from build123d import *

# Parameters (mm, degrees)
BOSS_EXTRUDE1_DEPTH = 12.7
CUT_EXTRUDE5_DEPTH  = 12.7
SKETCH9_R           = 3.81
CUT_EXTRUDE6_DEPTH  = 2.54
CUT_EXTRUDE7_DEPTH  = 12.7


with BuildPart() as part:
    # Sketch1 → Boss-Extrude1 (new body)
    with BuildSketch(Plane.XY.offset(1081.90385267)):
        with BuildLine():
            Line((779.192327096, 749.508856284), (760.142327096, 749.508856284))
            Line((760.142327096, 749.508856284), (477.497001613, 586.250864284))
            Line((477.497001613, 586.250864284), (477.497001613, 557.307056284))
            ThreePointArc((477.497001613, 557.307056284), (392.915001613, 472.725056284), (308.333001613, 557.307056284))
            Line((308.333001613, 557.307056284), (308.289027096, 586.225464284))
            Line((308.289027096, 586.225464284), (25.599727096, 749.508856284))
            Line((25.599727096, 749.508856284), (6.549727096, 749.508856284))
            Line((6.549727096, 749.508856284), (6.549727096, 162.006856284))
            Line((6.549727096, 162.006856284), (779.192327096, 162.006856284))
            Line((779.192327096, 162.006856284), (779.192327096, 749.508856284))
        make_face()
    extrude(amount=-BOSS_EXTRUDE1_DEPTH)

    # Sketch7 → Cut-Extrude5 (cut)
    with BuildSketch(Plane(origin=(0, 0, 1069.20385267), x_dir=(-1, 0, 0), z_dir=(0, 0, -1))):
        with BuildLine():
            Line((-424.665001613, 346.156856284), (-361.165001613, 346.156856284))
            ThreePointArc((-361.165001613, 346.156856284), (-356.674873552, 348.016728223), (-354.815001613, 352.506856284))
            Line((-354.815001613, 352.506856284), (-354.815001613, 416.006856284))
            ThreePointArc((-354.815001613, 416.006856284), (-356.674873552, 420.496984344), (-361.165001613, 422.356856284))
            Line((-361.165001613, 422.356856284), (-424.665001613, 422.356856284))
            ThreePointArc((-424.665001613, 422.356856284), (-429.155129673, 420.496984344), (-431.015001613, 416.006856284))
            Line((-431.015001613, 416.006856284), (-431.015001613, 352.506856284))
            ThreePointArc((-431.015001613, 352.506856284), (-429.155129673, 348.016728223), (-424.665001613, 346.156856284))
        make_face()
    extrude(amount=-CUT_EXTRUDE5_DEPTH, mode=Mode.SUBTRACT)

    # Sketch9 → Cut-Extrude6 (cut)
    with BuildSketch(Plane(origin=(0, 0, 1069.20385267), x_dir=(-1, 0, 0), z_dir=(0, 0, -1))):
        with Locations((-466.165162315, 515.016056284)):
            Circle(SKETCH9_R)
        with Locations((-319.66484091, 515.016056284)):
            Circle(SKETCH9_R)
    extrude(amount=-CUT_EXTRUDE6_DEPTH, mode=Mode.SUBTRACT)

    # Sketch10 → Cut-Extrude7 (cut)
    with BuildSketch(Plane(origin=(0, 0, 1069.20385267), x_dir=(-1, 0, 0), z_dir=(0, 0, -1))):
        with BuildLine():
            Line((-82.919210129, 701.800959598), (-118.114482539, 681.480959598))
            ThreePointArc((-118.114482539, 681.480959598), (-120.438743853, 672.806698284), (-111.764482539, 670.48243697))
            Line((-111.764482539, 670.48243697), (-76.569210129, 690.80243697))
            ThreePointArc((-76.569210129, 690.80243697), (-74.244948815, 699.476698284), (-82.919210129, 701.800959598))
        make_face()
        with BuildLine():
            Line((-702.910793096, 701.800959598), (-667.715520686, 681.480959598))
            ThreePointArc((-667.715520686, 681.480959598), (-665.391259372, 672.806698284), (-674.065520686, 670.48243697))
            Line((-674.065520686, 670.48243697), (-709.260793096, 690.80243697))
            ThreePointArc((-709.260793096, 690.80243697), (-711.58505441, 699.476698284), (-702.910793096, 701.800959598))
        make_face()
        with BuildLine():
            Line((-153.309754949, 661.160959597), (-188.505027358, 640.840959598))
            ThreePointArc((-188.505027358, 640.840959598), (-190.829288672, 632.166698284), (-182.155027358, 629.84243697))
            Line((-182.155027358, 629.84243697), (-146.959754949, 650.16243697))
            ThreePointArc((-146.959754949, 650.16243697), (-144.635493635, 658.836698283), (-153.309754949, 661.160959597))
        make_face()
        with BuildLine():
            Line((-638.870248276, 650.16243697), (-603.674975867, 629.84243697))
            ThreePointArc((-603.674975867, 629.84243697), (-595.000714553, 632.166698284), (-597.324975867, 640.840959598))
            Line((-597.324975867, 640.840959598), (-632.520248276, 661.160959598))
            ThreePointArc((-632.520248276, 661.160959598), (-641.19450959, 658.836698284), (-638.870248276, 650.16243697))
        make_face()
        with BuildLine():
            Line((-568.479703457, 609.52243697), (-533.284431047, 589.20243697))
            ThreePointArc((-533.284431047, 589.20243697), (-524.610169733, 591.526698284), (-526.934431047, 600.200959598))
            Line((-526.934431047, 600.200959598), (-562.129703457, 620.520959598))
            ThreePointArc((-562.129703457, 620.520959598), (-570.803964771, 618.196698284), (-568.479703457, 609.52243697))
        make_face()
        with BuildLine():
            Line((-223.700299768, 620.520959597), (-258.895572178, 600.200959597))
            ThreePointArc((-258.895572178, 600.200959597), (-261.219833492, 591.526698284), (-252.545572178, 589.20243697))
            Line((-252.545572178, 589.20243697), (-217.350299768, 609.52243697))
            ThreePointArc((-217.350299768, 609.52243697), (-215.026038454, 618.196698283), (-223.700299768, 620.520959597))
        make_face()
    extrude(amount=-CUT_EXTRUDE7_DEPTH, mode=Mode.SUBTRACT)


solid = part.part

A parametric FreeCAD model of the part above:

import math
import FreeCAD as App
import Part
import Sketcher

V = App.Vector
Q = App.Units.Quantity

doc = App.newDocument("Part")
body = doc.addObject("PartDesign::Body", "Body")

sketch1 = body.newObject("Sketcher::SketchObject", "Sketch")
sketch1.AttachmentSupport = (doc.getObject("XY_Plane"), [""])
sketch1.MapMode = "FlatFace"
sketch1.AttachmentOffset = App.Placement(V(0, 0, 1081.903853), App.Rotation())
sketch1.addGeometry([
    Part.LineSegment(V(779, 750, 0), V(760, 750, 0)),
    Part.LineSegment(V(760, 750, 0), V(477, 586, 0)),
    Part.LineSegment(V(477, 586, 0), V(477, 557, 0)),
    Part.ArcOfCircle(Part.Circle(V(393, 557, 0), V(0, 0, 1), 85), math.radians(180), math.radians(360)),
    Part.LineSegment(V(308, 557, 0), V(308, 586, 0)),
    Part.LineSegment(V(308, 586, 0), V(26, 750, 0)),
    Part.LineSegment(V(26, 750, 0), V(7, 750, 0)),
    Part.LineSegment(V(7, 750, 0), V(7, 162, 0)),
    Part.LineSegment(V(7, 162, 0), V(779, 162, 0)),
    Part.LineSegment(V(779, 162, 0), V(779, 750, 0)),
], False)
sketch1.addConstraint([
    Sketcher.Constraint("Coincident", 0, 2, 1, 1),
    Sketcher.Constraint("Coincident", 1, 2, 2, 1),
    Sketcher.Constraint("Tangent", 2, 2, 3, 2),
    Sketcher.Constraint("Coincident", 3, 1, 4, 1),
    Sketcher.Constraint("Coincident", 4, 2, 5, 1),
    Sketcher.Constraint("Coincident", 5, 2, 6, 1),
    Sketcher.Constraint("Coincident", 6, 2, 7, 1),
    Sketcher.Constraint("Coincident", 7, 2, 8, 1),
    Sketcher.Constraint("Coincident", 8, 2, 9, 1),
    Sketcher.Constraint("Coincident", 9, 2, 0, 1),
    Sketcher.Constraint("Horizontal", 0),
    Sketcher.Constraint("Vertical", 2),
    Sketcher.Constraint("Horizontal", 6),
    Sketcher.Constraint("Vertical", 7),
    Sketcher.Constraint("Horizontal", 8),
    Sketcher.Constraint("Vertical", 9),
    Sketcher.Constraint("Horizontal", 2, 2, 3, 1),
    Sketcher.Constraint("Horizontal", 0, 2, 5, 2),
    Sketcher.Constraint("Equal", 0, 6),
    Sketcher.Constraint("Radius", 3, Q("3.33 in")),
    Sketcher.Constraint("DistanceX", 0, 2, 0, 1, Q("0.75 in")),
    Sketcher.Constraint("DistanceY", 7, 2, 7, 1, Q("23.13 in")),
    Sketcher.Constraint("DistanceX", 8, 1, 8, 2, Q("30.419 in")),
    Sketcher.Constraint("DistanceY", 3, 3, 0, 2, Q("7.567 in")),
    Sketcher.Constraint("DistanceY", 4, 2, 1, 2, Q("0.001 in")),
    Sketcher.Constraint("DistanceX", 4, 2, 0, 2, Q("17.7895 in")),
    Sketcher.Constraint("DistanceX", -1, 1, 3, 3, Q("392.915002 mm")),
    Sketcher.Constraint("Distance", 4, Q("28.918441 mm")),
    Sketcher.Constraint("Distance", 1, Q("326.407034 mm")),
    Sketcher.Constraint("DistanceY", -1, 1, 3, 3, Q("557.307056 mm")),
])
pad1 = body.newObject("PartDesign::Pad", "Pad")
pad1.Profile = sketch1
pad1.Length = Q("0.5 in")
pad1.Reversed = True

sketch2 = body.newObject("Sketcher::SketchObject", "Sketch001")
sketch2.AttachmentSupport = (doc.getObject("XY_Plane"), [""])
sketch2.MapMode = "FlatFace"
sketch2.AttachmentOffset = App.Placement(V(0, 0, 1069.203853), App.Rotation())
sketch2.addGeometry([
    Part.LineSegment(V(425, 346, 0), V(361, 346, 0)),
    Part.ArcOfCircle(Part.Circle(V(361, 353, 0), V(0, 0, 1), 6), math.radians(180), math.radians(270)),
    Part.LineSegment(V(355, 353, 0), V(355, 416, 0)),
    Part.ArcOfCircle(Part.Circle(V(361, 416, 0), V(0, 0, 1), 6), math.radians(90), math.radians(180)),
    Part.LineSegment(V(361, 422, 0), V(425, 422, 0)),
    Part.ArcOfCircle(Part.Circle(V(425, 416, 0), V(0, 0, 1), 6), math.radians(0), math.radians(90)),
    Part.LineSegment(V(431, 416, 0), V(431, 353, 0)),
    Part.ArcOfCircle(Part.Circle(V(425, 353, 0), V(0, 0, 1), 6), math.radians(-90), math.radians(0)),
], False)
sketch2.addConstraint([
    Sketcher.Constraint("Tangent", 0, 2, 1, 2),
    Sketcher.Constraint("Tangent", 1, 1, 2, 1),
    Sketcher.Constraint("Tangent", 2, 2, 3, 2),
    Sketcher.Constraint("Tangent", 3, 1, 4, 1),
    Sketcher.Constraint("Tangent", 4, 2, 5, 2),
    Sketcher.Constraint("Tangent", 5, 1, 6, 1),
    Sketcher.Constraint("Tangent", 6, 2, 7, 2),
    Sketcher.Constraint("Tangent", 7, 1, 0, 1),
    Sketcher.Constraint("Horizontal", 0),
    Sketcher.Constraint("Vertical", 2),
    Sketcher.Constraint("Horizontal", 4),
    Sketcher.Constraint("Vertical", 6),
    Sketcher.Constraint("Equal", 1, 3),
    Sketcher.Constraint("Equal", 3, 5),
    Sketcher.Constraint("Equal", 5, 7),
    Sketcher.Constraint("Equal", 4, 2),
    Sketcher.Constraint("Radius", 1, Q("0.25 in")),
    Sketcher.Constraint("DistanceX", 0, 2, 0, 1, Q("2.5 in")),
    Sketcher.Constraint("DistanceX", -1, 1, 1, 3, Q("361.165002 mm")),
    Sketcher.Constraint("DistanceY", -1, 1, 1, 3, Q("352.506856 mm")),
])
pocket1 = body.newObject("PartDesign::Pocket", "Pocket")
pocket1.Profile = sketch2
pocket1.Length = Q("0.5 in")
pocket1.Reversed = True

sketch3 = body.newObject("Sketcher::SketchObject", "Sketch002")
sketch3.AttachmentSupport = (doc.getObject("XY_Plane"), [""])
sketch3.MapMode = "FlatFace"
sketch3.AttachmentOffset = App.Placement(V(0, 0, 1069.203853), App.Rotation())
sketch3.addGeometry([
    Part.Circle(V(466.2, 515, 0), V(0, 0, 1), 3.8),
    Part.Circle(V(319.7, 515, 0), V(0, 0, 1), 3.8),
], False)
sketch3.addConstraint([
    Sketcher.Constraint("Equal", 0, 1),
    Sketcher.Constraint("Horizontal", 0, 3, 1, 3),
    Sketcher.Constraint("Diameter", 0, Q("0.3 in")),
    Sketcher.Constraint("DistanceX", -1, 1, 1, 3, Q("319.664841 mm")),
    Sketcher.Constraint("DistanceX", 1, 3, 0, 3, Q("146.500321 mm")),
    Sketcher.Constraint("DistanceY", -1, 1, 0, 3, Q("515.016056 mm")),
])
pocket2 = body.newObject("PartDesign::Pocket", "Pocket001")
pocket2.Profile = sketch3
pocket2.Length = Q("0.1 in")
pocket2.Reversed = True

sketch4 = body.newObject("Sketcher::SketchObject", "Sketch003")
sketch4.AttachmentSupport = (doc.getObject("XY_Plane"), [""])
sketch4.MapMode = "FlatFace"
sketch4.AttachmentOffset = App.Placement(V(0, 0, 1069.203853), App.Rotation())
sketch4.addGeometry([
    Part.LineSegment(V(83, 702, 0), V(118, 681, 0)),
    Part.ArcOfCircle(Part.Circle(V(115, 676, 0), V(0, 0, 1), 6), math.radians(-120), math.radians(60)),
    Part.LineSegment(V(112, 670, 0), V(77, 691, 0)),
    Part.ArcOfCircle(Part.Circle(V(80, 696, 0), V(0, 0, 1), 6), math.radians(60), math.radians(240)),
    Part.LineSegment(V(668, 681, 0), V(703, 702, 0)),
    Part.ArcOfCircle(Part.Circle(V(706, 696, 0), V(0, 0, 1), 6), math.radians(-60), math.radians(120)),
    Part.LineSegment(V(709, 691, 0), V(674, 670, 0)),
    Part.ArcOfCircle(Part.Circle(V(671, 676, 0), V(0, 0, 1), 6), math.radians(120), math.radians(300)),
    Part.LineSegment(V(153, 661, 0), V(189, 641, 0)),
    Part.ArcOfCircle(Part.Circle(V(185, 635, 0), V(0, 0, 1), 6), math.radians(-120), math.radians(60)),
    Part.LineSegment(V(182, 630, 0), V(147, 650, 0)),
    Part.ArcOfCircle(Part.Circle(V(150, 656, 0), V(0, 0, 1), 6), math.radians(60), math.radians(240)),
    Part.LineSegment(V(639, 650, 0), V(604, 630, 0)),
    Part.ArcOfCircle(Part.Circle(V(600, 635, 0), V(0, 0, 1), 6), math.radians(120), math.radians(300)),
    Part.LineSegment(V(597, 641, 0), V(633, 661, 0)),
    Part.ArcOfCircle(Part.Circle(V(636, 656, 0), V(0, 0, 1), 6), math.radians(-60), math.radians(120)),
    Part.LineSegment(V(568, 610, 0), V(533, 589, 0)),
    Part.ArcOfCircle(Part.Circle(V(530, 595, 0), V(0, 0, 1), 6), math.radians(120), math.radians(300)),
    Part.LineSegment(V(527, 600, 0), V(562, 621, 0)),
    Part.ArcOfCircle(Part.Circle(V(565, 615, 0), V(0, 0, 1), 6), math.radians(-60), math.radians(120)),
    Part.LineSegment(V(224, 621, 0), V(259, 600, 0)),
    Part.ArcOfCircle(Part.Circle(V(256, 595, 0), V(0, 0, 1), 6), math.radians(-120), math.radians(60)),
    Part.LineSegment(V(253, 589, 0), V(217, 610, 0)),
    Part.ArcOfCircle(Part.Circle(V(221, 615, 0), V(0, 0, 1), 6), math.radians(60), math.radians(240)),
], False)
sketch4.addConstraint([
    Sketcher.Constraint("Tangent", 0, 2, 1, 2),
    Sketcher.Constraint("Tangent", 1, 1, 2, 1),
    Sketcher.Constraint("Tangent", 2, 2, 3, 2),
    Sketcher.Constraint("Tangent", 3, 1, 0, 1),
    Sketcher.Constraint("Tangent", 4, 2, 5, 2),
    Sketcher.Constraint("Tangent", 5, 1, 6, 1),
    Sketcher.Constraint("Tangent", 6, 2, 7, 2),
    Sketcher.Constraint("Tangent", 7, 1, 4, 1),
    Sketcher.Constraint("Tangent", 8, 2, 9, 2),
    Sketcher.Constraint("Tangent", 9, 1, 10, 1),
    Sketcher.Constraint("Tangent", 10, 2, 11, 2),
    Sketcher.Constraint("Tangent", 11, 1, 8, 1),
    Sketcher.Constraint("Tangent", 12, 2, 13, 2),
    Sketcher.Constraint("Tangent", 13, 1, 14, 1),
    Sketcher.Constraint("Tangent", 14, 2, 15, 2),
    Sketcher.Constraint("Tangent", 15, 1, 12, 1),
    Sketcher.Constraint("Tangent", 16, 2, 17, 2),
    Sketcher.Constraint("Tangent", 17, 1, 18, 1),
    Sketcher.Constraint("Tangent", 18, 2, 19, 2),
    Sketcher.Constraint("Tangent", 19, 1, 16, 1),
    Sketcher.Constraint("Tangent", 20, 2, 21, 2),
    Sketcher.Constraint("Tangent", 21, 1, 22, 1),
    Sketcher.Constraint("Tangent", 22, 2, 23, 2),
    Sketcher.Constraint("Tangent", 23, 1, 20, 1),
    Sketcher.Constraint("Equal", 1, 3),
    Sketcher.Constraint("Equal", 3, 5),
    Sketcher.Constraint("Equal", 5, 7),
    Sketcher.Constraint("Equal", 7, 9),
    Sketcher.Constraint("Equal", 9, 11),
    Sketcher.Constraint("Equal", 11, 13),
    Sketcher.Constraint("Equal", 13, 15),
    Sketcher.Constraint("Equal", 15, 17),
    Sketcher.Constraint("Equal", 17, 19),
    Sketcher.Constraint("Equal", 19, 21),
    Sketcher.Constraint("Equal", 21, 23),
    Sketcher.Constraint("Parallel", 2, 8),
    Sketcher.Constraint("Parallel", 6, 12),
    Sketcher.Constraint("Parallel", 14, 16),
    Sketcher.Constraint("Parallel", 10, 20),
    Sketcher.Constraint("Horizontal", 3, 3, 5, 3),
    Sketcher.Constraint("Horizontal", 1, 3, 7, 3),
    Sketcher.Constraint("Horizontal", 9, 3, 13, 3),
    Sketcher.Constraint("Horizontal", 11, 3, 15, 3),
    Sketcher.Constraint("Horizontal", 17, 3, 21, 3),
    Sketcher.Constraint("Horizontal", 19, 3, 23, 3),
    Sketcher.Constraint("Horizontal", 3, 1, 4, 2),
    Sketcher.Constraint("Equal", 6, 8),
    Sketcher.Constraint("Equal", 14, 16),
    Sketcher.Constraint("Radius", 1, Q("0.25 in")),
    Sketcher.Constraint("Angle", 0, Q("-30 deg")),
    Sketcher.Constraint("DistanceY", 17, 3, 5, 3, Q("4 in")),
    Sketcher.Constraint("Distance", 0, Q("1.6 in")),
    Sketcher.Constraint("DistanceY", 9, 3, 1, 3, Q("1.6 in")),
    Sketcher.Constraint("DistanceY", -1, 1, 1, 3, Q("675.981698 mm")),
    Sketcher.Constraint("DistanceX", -1, 1, 23, 3, Q("220.5253 mm")),
    Sketcher.Constraint("DistanceX", -1, 1, 3, 3, Q("79.74421 mm")),
    Sketcher.Constraint("DistanceX", -1, 1, 7, 3, Q("670.890521 mm")),
    Sketcher.Constraint("DistanceX", -1, 1, 15, 3, Q("635.695248 mm")),
    Sketcher.Constraint("DistanceX", -1, 1, 17, 3, Q("530.109431 mm")),
    Sketcher.Constraint("DistanceX", 11, 3, 5, 3, Q("555.951038 mm")),
])
pocket3 = body.newObject("PartDesign::Pocket", "Pocket002")
pocket3.Profile = sketch4
pocket3.Length = Q("0.5 in")
pocket3.Reversed = True

doc.recompute()
